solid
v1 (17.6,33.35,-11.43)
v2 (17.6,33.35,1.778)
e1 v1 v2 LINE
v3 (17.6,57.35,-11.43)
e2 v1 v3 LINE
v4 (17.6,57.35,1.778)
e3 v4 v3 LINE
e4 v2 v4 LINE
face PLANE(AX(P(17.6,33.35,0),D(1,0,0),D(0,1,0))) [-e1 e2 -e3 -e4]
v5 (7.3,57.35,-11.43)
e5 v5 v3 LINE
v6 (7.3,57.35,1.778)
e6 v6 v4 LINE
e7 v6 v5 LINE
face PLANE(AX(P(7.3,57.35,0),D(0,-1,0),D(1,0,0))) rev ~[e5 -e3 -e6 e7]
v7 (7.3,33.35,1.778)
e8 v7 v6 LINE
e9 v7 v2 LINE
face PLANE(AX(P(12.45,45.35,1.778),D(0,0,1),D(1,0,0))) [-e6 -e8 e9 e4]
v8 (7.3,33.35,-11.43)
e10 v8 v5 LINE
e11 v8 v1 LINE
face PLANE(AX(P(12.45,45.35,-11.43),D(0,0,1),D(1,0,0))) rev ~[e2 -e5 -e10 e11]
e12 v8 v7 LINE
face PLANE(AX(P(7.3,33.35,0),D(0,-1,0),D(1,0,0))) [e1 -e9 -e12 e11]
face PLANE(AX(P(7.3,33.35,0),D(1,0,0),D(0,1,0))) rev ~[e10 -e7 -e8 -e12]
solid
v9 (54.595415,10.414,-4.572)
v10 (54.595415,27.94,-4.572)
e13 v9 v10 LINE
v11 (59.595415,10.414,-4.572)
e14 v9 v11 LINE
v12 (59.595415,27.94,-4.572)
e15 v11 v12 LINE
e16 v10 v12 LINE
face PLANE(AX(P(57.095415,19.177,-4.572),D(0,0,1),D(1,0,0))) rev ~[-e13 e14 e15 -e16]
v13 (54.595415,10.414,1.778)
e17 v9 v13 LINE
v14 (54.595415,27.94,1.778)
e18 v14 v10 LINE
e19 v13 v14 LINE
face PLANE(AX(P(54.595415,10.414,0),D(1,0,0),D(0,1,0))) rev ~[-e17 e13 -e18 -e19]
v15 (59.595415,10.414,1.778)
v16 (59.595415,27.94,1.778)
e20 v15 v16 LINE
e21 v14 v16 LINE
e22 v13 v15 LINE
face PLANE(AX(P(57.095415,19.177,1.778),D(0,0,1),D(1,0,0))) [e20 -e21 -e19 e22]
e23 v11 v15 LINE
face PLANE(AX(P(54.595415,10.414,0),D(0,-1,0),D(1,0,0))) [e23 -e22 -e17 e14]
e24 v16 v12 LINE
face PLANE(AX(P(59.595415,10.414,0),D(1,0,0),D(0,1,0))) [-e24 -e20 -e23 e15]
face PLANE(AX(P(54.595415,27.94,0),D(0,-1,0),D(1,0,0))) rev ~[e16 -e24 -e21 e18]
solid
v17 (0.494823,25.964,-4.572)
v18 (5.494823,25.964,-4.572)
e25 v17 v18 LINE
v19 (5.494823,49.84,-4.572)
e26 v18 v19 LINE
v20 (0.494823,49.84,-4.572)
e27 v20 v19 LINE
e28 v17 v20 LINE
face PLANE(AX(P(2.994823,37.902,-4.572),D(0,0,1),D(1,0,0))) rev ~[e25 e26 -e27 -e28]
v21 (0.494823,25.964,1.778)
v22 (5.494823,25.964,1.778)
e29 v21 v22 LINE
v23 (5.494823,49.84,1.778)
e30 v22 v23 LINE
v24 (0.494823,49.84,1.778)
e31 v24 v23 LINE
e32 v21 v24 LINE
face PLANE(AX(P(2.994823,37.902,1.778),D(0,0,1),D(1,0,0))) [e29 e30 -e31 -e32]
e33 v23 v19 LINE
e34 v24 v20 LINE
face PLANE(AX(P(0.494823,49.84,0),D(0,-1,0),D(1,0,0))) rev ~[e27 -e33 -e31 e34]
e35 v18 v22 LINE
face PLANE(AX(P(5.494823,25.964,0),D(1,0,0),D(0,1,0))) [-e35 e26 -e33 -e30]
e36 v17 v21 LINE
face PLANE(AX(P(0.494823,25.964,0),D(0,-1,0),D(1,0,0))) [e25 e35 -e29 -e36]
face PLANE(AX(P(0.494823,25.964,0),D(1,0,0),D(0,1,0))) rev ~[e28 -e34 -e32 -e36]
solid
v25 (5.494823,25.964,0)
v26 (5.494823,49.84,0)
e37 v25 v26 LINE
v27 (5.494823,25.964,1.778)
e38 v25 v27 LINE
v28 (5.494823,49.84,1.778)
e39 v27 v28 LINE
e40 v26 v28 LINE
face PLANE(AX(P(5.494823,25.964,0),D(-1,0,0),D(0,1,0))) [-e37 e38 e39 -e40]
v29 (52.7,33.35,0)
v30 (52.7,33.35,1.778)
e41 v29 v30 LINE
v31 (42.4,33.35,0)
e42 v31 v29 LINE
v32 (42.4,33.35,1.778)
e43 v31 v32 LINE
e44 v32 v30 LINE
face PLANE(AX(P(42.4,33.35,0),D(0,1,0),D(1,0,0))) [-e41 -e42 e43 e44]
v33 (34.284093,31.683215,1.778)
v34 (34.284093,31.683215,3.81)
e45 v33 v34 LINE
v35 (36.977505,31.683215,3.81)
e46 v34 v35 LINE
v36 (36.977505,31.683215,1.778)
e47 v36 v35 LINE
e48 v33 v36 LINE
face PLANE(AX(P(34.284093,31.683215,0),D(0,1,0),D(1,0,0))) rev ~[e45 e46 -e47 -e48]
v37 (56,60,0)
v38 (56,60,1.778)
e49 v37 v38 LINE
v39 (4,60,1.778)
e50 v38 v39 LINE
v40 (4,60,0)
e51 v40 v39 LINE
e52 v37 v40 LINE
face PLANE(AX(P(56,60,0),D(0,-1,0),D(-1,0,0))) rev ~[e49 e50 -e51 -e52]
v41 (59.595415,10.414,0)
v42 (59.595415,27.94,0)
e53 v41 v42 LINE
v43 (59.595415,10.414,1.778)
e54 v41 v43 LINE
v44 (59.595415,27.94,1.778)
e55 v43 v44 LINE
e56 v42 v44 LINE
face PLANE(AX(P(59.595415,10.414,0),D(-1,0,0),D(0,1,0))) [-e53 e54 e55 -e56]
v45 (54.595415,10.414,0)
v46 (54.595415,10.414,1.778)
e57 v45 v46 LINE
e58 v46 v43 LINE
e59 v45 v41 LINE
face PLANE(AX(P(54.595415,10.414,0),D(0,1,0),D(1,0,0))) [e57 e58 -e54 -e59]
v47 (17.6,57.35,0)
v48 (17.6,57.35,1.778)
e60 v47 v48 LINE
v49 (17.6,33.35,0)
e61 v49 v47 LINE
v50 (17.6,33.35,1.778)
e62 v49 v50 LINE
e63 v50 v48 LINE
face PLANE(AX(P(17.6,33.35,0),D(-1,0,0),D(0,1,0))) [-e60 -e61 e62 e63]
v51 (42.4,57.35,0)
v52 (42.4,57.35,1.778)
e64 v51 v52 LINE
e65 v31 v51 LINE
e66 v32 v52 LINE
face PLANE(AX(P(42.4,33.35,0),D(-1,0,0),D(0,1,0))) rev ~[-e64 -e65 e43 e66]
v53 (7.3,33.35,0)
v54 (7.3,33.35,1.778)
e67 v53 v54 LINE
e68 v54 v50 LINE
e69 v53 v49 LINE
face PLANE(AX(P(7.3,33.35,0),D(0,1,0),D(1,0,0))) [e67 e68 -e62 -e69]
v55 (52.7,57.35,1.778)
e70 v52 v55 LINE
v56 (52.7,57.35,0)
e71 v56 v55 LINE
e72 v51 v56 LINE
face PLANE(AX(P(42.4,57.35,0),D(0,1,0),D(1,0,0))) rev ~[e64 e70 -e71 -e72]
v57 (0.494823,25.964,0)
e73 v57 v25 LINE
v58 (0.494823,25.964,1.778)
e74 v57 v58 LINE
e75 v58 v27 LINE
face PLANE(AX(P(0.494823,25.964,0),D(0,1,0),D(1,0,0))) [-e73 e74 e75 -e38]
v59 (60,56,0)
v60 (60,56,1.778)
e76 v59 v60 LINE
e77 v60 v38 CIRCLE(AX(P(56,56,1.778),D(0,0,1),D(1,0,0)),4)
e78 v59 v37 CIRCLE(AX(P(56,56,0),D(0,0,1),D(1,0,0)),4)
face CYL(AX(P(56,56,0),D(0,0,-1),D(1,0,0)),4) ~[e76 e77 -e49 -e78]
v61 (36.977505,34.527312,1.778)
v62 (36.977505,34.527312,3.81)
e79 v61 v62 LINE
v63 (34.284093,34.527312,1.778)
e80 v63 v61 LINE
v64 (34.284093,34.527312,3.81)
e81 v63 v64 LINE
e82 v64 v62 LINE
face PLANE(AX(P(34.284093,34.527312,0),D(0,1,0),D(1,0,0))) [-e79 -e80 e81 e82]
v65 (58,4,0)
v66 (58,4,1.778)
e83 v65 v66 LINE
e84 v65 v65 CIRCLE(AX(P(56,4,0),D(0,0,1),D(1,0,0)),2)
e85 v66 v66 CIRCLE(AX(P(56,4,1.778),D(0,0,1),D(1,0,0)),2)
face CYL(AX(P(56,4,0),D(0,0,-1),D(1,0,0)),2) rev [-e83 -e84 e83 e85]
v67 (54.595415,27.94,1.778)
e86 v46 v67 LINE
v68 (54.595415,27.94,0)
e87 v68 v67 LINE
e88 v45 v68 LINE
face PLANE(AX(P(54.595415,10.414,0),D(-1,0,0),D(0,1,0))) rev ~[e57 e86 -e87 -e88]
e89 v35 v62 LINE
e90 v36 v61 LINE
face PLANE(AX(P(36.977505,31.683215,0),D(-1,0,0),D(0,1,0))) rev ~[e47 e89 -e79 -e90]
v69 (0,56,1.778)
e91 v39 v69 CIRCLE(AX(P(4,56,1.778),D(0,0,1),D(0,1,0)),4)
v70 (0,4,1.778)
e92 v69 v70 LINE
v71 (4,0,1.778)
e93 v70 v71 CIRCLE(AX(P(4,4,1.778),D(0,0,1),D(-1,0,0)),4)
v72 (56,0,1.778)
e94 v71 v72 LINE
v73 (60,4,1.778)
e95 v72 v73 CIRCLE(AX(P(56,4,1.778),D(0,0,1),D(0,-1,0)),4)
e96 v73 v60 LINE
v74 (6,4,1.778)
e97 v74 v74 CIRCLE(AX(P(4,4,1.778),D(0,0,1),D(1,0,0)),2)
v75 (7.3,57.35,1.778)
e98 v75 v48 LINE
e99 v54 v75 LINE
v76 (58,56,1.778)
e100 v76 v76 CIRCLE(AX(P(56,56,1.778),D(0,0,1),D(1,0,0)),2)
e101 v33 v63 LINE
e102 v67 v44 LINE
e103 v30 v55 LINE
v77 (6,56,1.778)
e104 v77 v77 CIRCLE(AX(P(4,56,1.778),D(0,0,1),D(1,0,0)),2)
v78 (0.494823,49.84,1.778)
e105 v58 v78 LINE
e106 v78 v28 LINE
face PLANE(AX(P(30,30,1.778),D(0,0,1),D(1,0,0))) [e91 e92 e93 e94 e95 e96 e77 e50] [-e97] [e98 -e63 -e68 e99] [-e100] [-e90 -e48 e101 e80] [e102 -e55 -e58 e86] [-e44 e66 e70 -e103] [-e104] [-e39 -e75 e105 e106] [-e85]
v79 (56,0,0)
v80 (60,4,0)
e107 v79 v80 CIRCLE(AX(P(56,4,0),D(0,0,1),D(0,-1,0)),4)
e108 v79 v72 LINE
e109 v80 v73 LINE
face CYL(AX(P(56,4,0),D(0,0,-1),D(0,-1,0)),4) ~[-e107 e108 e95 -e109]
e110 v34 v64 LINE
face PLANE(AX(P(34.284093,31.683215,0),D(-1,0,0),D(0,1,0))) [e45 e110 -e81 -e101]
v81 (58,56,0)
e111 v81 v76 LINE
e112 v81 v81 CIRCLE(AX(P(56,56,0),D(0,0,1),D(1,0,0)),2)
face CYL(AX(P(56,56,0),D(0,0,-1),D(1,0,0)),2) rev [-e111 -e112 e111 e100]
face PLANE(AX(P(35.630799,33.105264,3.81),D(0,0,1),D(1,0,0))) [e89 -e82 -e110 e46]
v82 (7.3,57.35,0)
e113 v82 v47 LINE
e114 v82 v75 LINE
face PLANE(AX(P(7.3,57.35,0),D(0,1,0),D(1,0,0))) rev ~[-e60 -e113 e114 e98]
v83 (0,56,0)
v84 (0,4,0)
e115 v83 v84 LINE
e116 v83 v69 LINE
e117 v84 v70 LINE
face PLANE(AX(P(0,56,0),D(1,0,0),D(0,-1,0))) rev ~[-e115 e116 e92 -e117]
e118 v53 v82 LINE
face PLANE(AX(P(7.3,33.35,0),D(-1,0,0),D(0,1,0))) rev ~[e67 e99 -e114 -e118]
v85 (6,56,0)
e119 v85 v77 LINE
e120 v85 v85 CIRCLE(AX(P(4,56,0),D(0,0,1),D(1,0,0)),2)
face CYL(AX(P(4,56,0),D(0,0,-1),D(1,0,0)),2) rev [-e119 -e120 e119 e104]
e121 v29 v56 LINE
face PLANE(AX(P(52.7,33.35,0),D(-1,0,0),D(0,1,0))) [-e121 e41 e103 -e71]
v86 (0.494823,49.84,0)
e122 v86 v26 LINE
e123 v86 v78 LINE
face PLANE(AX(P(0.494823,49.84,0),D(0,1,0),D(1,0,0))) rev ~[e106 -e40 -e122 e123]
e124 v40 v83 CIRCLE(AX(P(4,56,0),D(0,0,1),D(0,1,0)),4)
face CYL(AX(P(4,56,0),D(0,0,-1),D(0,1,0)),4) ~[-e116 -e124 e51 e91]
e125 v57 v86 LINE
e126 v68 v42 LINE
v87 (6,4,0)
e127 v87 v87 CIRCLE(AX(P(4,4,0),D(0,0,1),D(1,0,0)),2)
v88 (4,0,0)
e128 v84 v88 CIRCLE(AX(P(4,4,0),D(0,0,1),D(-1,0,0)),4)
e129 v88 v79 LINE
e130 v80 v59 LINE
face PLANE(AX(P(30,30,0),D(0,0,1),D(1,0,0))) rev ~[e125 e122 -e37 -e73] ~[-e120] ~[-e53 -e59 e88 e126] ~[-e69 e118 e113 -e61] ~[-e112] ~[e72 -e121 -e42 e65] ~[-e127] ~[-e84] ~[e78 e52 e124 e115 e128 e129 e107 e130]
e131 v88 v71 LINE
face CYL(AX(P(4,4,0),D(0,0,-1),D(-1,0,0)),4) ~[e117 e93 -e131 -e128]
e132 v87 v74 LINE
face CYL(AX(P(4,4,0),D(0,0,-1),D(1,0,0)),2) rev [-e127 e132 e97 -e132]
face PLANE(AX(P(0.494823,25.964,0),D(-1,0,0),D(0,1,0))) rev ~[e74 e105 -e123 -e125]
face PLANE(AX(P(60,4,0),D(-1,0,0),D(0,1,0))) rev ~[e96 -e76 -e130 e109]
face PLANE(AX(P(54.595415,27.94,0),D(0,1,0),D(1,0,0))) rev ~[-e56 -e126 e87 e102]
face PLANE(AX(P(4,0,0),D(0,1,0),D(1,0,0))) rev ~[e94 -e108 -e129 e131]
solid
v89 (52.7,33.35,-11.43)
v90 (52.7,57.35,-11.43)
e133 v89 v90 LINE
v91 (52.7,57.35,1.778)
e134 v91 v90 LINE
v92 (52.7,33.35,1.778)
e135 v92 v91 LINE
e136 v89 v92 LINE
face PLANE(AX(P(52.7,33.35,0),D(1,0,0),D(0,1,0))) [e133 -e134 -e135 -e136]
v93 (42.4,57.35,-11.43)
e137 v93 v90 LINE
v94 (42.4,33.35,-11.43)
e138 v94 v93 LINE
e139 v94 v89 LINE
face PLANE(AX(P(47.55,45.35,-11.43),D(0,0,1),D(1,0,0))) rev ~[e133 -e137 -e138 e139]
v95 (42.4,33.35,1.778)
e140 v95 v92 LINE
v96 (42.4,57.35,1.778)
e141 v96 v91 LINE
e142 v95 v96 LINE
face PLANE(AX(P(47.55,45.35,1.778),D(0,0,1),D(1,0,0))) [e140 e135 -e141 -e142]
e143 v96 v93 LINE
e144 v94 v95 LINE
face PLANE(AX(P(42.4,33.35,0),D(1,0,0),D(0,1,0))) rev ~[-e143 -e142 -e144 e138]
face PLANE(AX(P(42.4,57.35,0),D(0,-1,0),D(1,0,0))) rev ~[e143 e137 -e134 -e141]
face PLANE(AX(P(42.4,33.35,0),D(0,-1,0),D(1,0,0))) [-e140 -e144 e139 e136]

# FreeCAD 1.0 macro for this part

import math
import FreeCAD as App
import Part
import Sketcher
Q = App.Units.Quantity


def add_polygon(sketch, points):
    """Adds a closed chain of lines whose ends are joined by coincident constraints."""
    first, n = sketch.GeometryCount, len(points)
    for a, b in zip(points, points[1:] + points[:1]):
        sketch.addGeometry(Part.LineSegment(App.Vector(*a, 0), App.Vector(*b, 0)), False)
    for i in range(n):
        sketch.addConstraint(Sketcher.Constraint("Coincident", first + i, 2, first + (i + 1) % n, 1))

doc = App.newDocument("Part")
body = doc.addObject("PartDesign::Body", "Body")

sketch1 = body.newObject("Sketcher::SketchObject", "Sketch")
sketch1.AttachmentSupport = (doc.getObject("XY_Plane"), [""])
sketch1.MapMode = "FlatFace"
sketch1.addGeometry(Part.ArcOfCircle(Part.Circle(App.Vector(4, 4, 0), App.Vector(0, 0, 1), 4), math.radians(180), math.radians(270)), False)
sketch1.addGeometry(Part.LineSegment(App.Vector(4, 0, 0), App.Vector(56, 0, 0)), False)
sketch1.addGeometry(Part.ArcOfCircle(Part.Circle(App.Vector(56, 4, 0), App.Vector(0, 0, 1), 4), math.radians(-90), math.radians(0)), False)
sketch1.addGeometry(Part.LineSegment(App.Vector(60, 4, 0), App.Vector(60, 56, 0)), False)
sketch1.addGeometry(Part.ArcOfCircle(Part.Circle(App.Vector(56, 56, 0), App.Vector(0, 0, 1), 4), math.radians(0), math.radians(90)), False)
sketch1.addGeometry(Part.LineSegment(App.Vector(56, 60, 0), App.Vector(4, 60, 0)), False)
sketch1.addGeometry(Part.ArcOfCircle(Part.Circle(App.Vector(4, 56, 0), App.Vector(0, 0, 1), 4), math.radians(90), math.radians(180)), False)
sketch1.addGeometry(Part.LineSegment(App.Vector(0, 56, 0), App.Vector(0, 4, 0)), False)
sketch1.addGeometry(Part.Circle(App.Vector(4, 4, 0), App.Vector(0, 0, 1), 2), False)
sketch1.addGeometry(Part.Circle(App.Vector(56, 4, 0), App.Vector(0, 0, 1), 2), False)
add_polygon(sketch1, [(59.6, 10.4), (54.6, 10.4), (54.6, 27.9), (59.6, 27.9)])
add_polygon(sketch1, [(5.5, 26), (0.5, 26), (0.5, 49.8), (5.5, 49.8)])
add_polygon(sketch1, [(17.6, 33.4), (7.3, 33.4), (7.3, 57.4), (17.6, 57.4)])
sketch1.addGeometry(Part.Circle(App.Vector(4, 56, 0), App.Vector(0, 0, 1), 2), False)
add_polygon(sketch1, [(37, 31.7), (34.3, 31.7), (34.3, 34.5), (37, 34.5)])
add_polygon(sketch1, [(52.7, 33.4), (42.4, 33.4), (42.4, 57.4), (52.7, 57.4)])
sketch1.addGeometry(Part.Circle(App.Vector(56, 56, 0), App.Vector(0, 0, 1), 2), False)
sketch1.addConstraint(Sketcher.Constraint("Tangent", 0, 2, 1, 1))
sketch1.addConstraint(Sketcher.Constraint("Tangent", 1, 2, 2, 1))
sketch1.addConstraint(Sketcher.Constraint("Tangent", 2, 2, 3, 1))
sketch1.addConstraint(Sketcher.Constraint("Tangent", 3, 2, 4, 1))
sketch1.addConstraint(Sketcher.Constraint("Tangent", 4, 2, 5, 1))
sketch1.addConstraint(Sketcher.Constraint("Tangent", 5, 2, 6, 1))
sketch1.addConstraint(Sketcher.Constraint("Tangent", 6, 2, 7, 1))
sketch1.addConstraint(Sketcher.Constraint("Tangent", 7, 2, 0, 1))
sketch1.addConstraint(Sketcher.Constraint("Horizontal", 1))
sketch1.addConstraint(Sketcher.Constraint("Vertical", 3))
sketch1.addConstraint(Sketcher.Constraint("Horizontal", 5))
sketch1.addConstraint(Sketcher.Constraint("Vertical", 7))
sketch1.addConstraint(Sketcher.Constraint("Horizontal", 10))
sketch1.addConstraint(Sketcher.Constraint("Vertical", 11))
sketch1.addConstraint(Sketcher.Constraint("Horizontal", 12))
sketch1.addConstraint(Sketcher.Constraint("Vertical", 13))
sketch1.addConstraint(Sketcher.Constraint("Horizontal", 14))
sketch1.addConstraint(Sketcher.Constraint("Vertical", 15))
sketch1.addConstraint(Sketcher.Constraint("Horizontal", 16))
sketch1.addConstraint(Sketcher.Constraint("Vertical", 17))
sketch1.addConstraint(Sketcher.Constraint("Horizontal", 18))
sketch1.addConstraint(Sketcher.Constraint("Vertical", 19))
sketch1.addConstraint(Sketcher.Constraint("Horizontal", 20))
sketch1.addConstraint(Sketcher.Constraint("Vertical", 21))
sketch1.addConstraint(Sketcher.Constraint("Horizontal", 23))
sketch1.addConstraint(Sketcher.Constraint("Vertical", 24))
sketch1.addConstraint(Sketcher.Constraint("Horizontal", 25))
sketch1.addConstraint(Sketcher.Constraint("Vertical", 26))
sketch1.addConstraint(Sketcher.Constraint("Horizontal", 27))
sketch1.addConstraint(Sketcher.Constraint("Vertical", 28))
sketch1.addConstraint(Sketcher.Constraint("Horizontal", 29))
sketch1.addConstraint(Sketcher.Constraint("Vertical", 30))
sketch1.addConstraint(Sketcher.Constraint("Coincident", 8, 3, 0, 3))
sketch1.addConstraint(Sketcher.Constraint("Coincident", 9, 3, 2, 3))
sketch1.addConstraint(Sketcher.Constraint("Coincident", 22, 3, 6, 3))
sketch1.addConstraint(Sketcher.Constraint("Coincident", 31, 3, 4, 3))
sketch1.addConstraint(Sketcher.Constraint("Equal", 0, 2))
sketch1.addConstraint(Sketcher.Constraint("Equal", 2, 4))
sketch1.addConstraint(Sketcher.Constraint("Equal", 4, 6))
sketch1.addConstraint(Sketcher.Constraint("Equal", 8, 9))
sketch1.addConstraint(Sketcher.Constraint("Equal", 9, 22))
sketch1.addConstraint(Sketcher.Constraint("Equal", 22, 31))
sketch1.addConstraint(Sketcher.Constraint("PointOnObject", 0, 2, -1))
sketch1.addConstraint(Sketcher.Constraint("PointOnObject", 6, 2, -2))
sketch1.addConstraint(Sketcher.Constraint("Horizontal", 21, 2, 27, 2))
sketch1.addConstraint(Sketcher.Constraint("Horizontal", 20, 2, 28, 2))
sketch1.addConstraint(Sketcher.Constraint("Equal", 12, 14))
sketch1.addConstraint(Sketcher.Constraint("Equal", 20, 27))
sketch1.addConstraint(Sketcher.Constraint("Equal", 5, 3))
sketch1.addConstraint(Sketcher.Constraint("Diameter", 8, Q("4 mm")))
sketch1.addConstraint(Sketcher.Constraint("Radius", 0, Q("4 mm")))
sketch1.addConstraint(Sketcher.Constraint("DistanceX", 1, 1, 1, 2, Q("52 mm")))
sketch1.addConstraint(Sketcher.Constraint("DistanceX", 10, 2, 10, 1, Q("5 mm")))
sketch1.addConstraint(Sketcher.Constraint("DistanceY", 19, 1, 19, 2, Q("24 mm")))
sketch1.addConstraint(Sketcher.Constraint("DistanceX", 18, 2, 18, 1, Q("10.3 mm")))
sketch1.addConstraint(Sketcher.Constraint("DistanceX", -1, 1, 18, 2, Q("7.3 mm")))
sketch1.addConstraint(Sketcher.Constraint("DistanceX", -1, 1, 27, 2, Q("42.4 mm")))
sketch1.addConstraint(Sketcher.Constraint("DistanceY", 11, 1, 11, 2, Q("17.526 mm")))
sketch1.addConstraint(Sketcher.Constraint("DistanceY", 15, 1, 15, 2, Q("23.876 mm")))
sketch1.addConstraint(Sketcher.Constraint("DistanceY", -1, 1, 11, 2, Q("27.94 mm")))
sketch1.addConstraint(Sketcher.Constraint("DistanceY", -1, 1, 15, 2, Q("49.84 mm")))
sketch1.addConstraint(Sketcher.Constraint("DistanceY", -1, 1, 18, 2, Q("33.35 mm")))
sketch1.addConstraint(Sketcher.Constraint("DistanceX", 23, 2, 23, 1, Q("2.693412 mm")))
sketch1.addConstraint(Sketcher.Constraint("DistanceY", 24, 1, 24, 2, Q("2.844098 mm")))
sketch1.addConstraint(Sketcher.Constraint("DistanceX", 17, 2, 23, 2, Q("28.78927 mm")))
sketch1.addConstraint(Sketcher.Constraint("DistanceX", 25, 2, 11, 2, Q("17.617911 mm")))
sketch1.addConstraint(Sketcher.Constraint("DistanceX", -1, 1, 10, 2, Q("54.595415 mm")))
sketch1.addConstraint(Sketcher.Constraint("DistanceY", -1, 1, 23, 2, Q("31.683215 mm")))
pad1 = body.newObject("PartDesign::Pad", "Pad")
pad1.Profile = sketch1
pad1.Length = 1.778

sketch2 = body.newObject("Sketcher::SketchObject", "Sketch001")
sketch2.AttachmentSupport = (doc.getObject("XY_Plane"), [""])
sketch2.MapMode = "FlatFace"
add_polygon(sketch2, [(34.3, 34.5), (34.3, 31.7), (37, 31.7), (37, 34.5)])
sketch2.addConstraint(Sketcher.Constraint("Vertical", 0))
sketch2.addConstraint(Sketcher.Constraint("Horizontal", 1))
sketch2.addConstraint(Sketcher.Constraint("Vertical", 2))
sketch2.addConstraint(Sketcher.Constraint("Horizontal", 3))
sketch2.addConstraint(Sketcher.Constraint("DistanceX", 1, 1, 1, 2, Q("2.693412 mm")))
sketch2.addConstraint(Sketcher.Constraint("DistanceY", 0, 2, 0, 1, Q("2.844098 mm")))
sketch2.addConstraint(Sketcher.Constraint("DistanceX", -1, 1, 0, 2, Q("34.284093 mm")))
sketch2.addConstraint(Sketcher.Constraint("DistanceY", -1, 1, 0, 2, Q("31.683215 mm")))
pad2 = body.newObject("PartDesign::Pad", "Pad001")
pad2.Profile = sketch2
pad2.Length = 3.81
body2 = doc.addObject("PartDesign::Body", "Body001")

sketch3 = body2.newObject("Sketcher::SketchObject", "Sketch002")
sketch3.AttachmentSupport = (doc.getObject("XY_Plane001"), [""])
sketch3.MapMode = "FlatFace"
add_polygon(sketch3, [(42, 57), (42, 33), (53, 33), (53, 57)])
sketch3.addConstraint(Sketcher.Constraint("Vertical", 0))
sketch3.addConstraint(Sketcher.Constraint("Horizontal", 1))
sketch3.addConstraint(Sketcher.Constraint("Vertical", 2))
sketch3.addConstraint(Sketcher.Constraint("Horizontal", 3))
sketch3.addConstraint(Sketcher.Constraint("DistanceY", 0, 2, 0, 1, Q("24 mm")))
sketch3.addConstraint(Sketcher.Constraint("DistanceX", 1, 1, 1, 2, Q("10.3 mm")))
sketch3.addConstraint(Sketcher.Constraint("DistanceX", -1, 1, 0, 2, Q("42.4 mm")))
sketch3.addConstraint(Sketcher.Constraint("DistanceY", -1, 1, 0, 2, Q("33.35 mm")))
pad3 = body2.newObject("PartDesign::Pad", "Pad002")
pad3.Profile = sketch3
pad3.Type = "TwoLengths"
pad3.Length = 1.778
pad3.Length2 = 11.43
body3 = doc.addObject("PartDesign::Body", "Body002")

sketch4 = body3.newObject("Sketcher::SketchObject", "Sketch003")
sketch4.AttachmentSupport = (doc.getObject("XY_Plane002"), [""])
sketch4.MapMode = "FlatFace"
add_polygon(sketch4, [(7, 57), (7, 33), (18, 33), (18, 57)])
sketch4.addConstraint(Sketcher.Constraint("Vertical", 0))
sketch4.addConstraint(Sketcher.Constraint("Horizontal", 1))
sketch4.addConstraint(Sketcher.Constraint("Vertical", 2))
sketch4.addConstraint(Sketcher.Constraint("Horizontal", 3))
sketch4.addConstraint(Sketcher.Constraint("DistanceY", 0, 2, 0, 1, Q("24 mm")))
sketch4.addConstraint(Sketcher.Constraint("DistanceX", 1, 1, 1, 2, Q("10.3 mm")))
sketch4.addConstraint(Sketcher.Constraint("DistanceX", -1, 1, 0, 2, Q("7.3 mm")))
sketch4.addConstraint(Sketcher.Constraint("DistanceY", -1, 1, 0, 2, Q("33.35 mm")))
pad4 = body3.newObject("PartDesign::Pad", "Pad003")
pad4.Profile = sketch4
pad4.Type = "TwoLengths"
pad4.Length = 1.778
pad4.Length2 = 11.43
body4 = doc.addObject("PartDesign::Body", "Body003")

sketch5 = body4.newObject("Sketcher::SketchObject", "Sketch004")
sketch5.AttachmentSupport = (doc.getObject("XY_Plane003"), [""])
sketch5.MapMode = "FlatFace"
add_polygon(sketch5, [(55, 28), (55, 10), (60, 10), (60, 28)])
sketch5.addConstraint(Sketcher.Constraint("Vertical", 0))
sketch5.addConstraint(Sketcher.Constraint("Horizontal", 1))
sketch5.addConstraint(Sketcher.Constraint("Vertical", 2))
sketch5.addConstraint(Sketcher.Constraint("Horizontal", 3))
sketch5.addConstraint(Sketcher.Constraint("DistanceX", 1, 1, 1, 2, Q("5 mm")))
sketch5.addConstraint(Sketcher.Constraint("DistanceY", 0, 2, 0, 1, Q("17.526 mm")))
sketch5.addConstraint(Sketcher.Constraint("DistanceY", -1, 1, 2, 2, Q("27.94 mm")))
sketch5.addConstraint(Sketcher.Constraint("DistanceX", -1, 1, 0, 2, Q("54.595415 mm")))
pad5 = body4.newObject("PartDesign::Pad", "Pad004")
pad5.Profile = sketch5
pad5.Type = "TwoLengths"
pad5.Length = 1.778
pad5.Length2 = 4.572
body5 = doc.addObject("PartDesign::Body", "Body004")

sketch6 = body5.newObject("Sketcher::SketchObject", "Sketch005")
sketch6.AttachmentSupport = (doc.getObject("XY_Plane004"), [""])
sketch6.MapMode = "FlatFace"
add_polygon(sketch6, [(0, 50), (0, 26), (5, 26), (5, 50)])
sketch6.addConstraint(Sketcher.Constraint("Vertical", 0))
sketch6.addConstraint(Sketcher.Constraint("Horizontal", 1))
sketch6.addConstraint(Sketcher.Constraint("Vertical", 2))
sketch6.addConstraint(Sketcher.Constraint("Horizontal", 3))
sketch6.addConstraint(Sketcher.Constraint("DistanceX", 1, 1, 1, 2, Q("5 mm")))
sketch6.addConstraint(Sketcher.Constraint("DistanceY", 0, 2, 0, 1, Q("23.876 mm")))
sketch6.addConstraint(Sketcher.Constraint("DistanceY", -1, 1, 2, 2, Q("49.84 mm")))
sketch6.addConstraint(Sketcher.Constraint("DistanceX", -1, 1, 0, 2, Q("0.494823 mm")))
pad6 = body5.newObject("PartDesign::Pad", "Pad005")
pad6.Profile = sketch6
pad6.Type = "TwoLengths"
pad6.Length = 1.778
pad6.Length2 = 4.572

doc.recompute()
